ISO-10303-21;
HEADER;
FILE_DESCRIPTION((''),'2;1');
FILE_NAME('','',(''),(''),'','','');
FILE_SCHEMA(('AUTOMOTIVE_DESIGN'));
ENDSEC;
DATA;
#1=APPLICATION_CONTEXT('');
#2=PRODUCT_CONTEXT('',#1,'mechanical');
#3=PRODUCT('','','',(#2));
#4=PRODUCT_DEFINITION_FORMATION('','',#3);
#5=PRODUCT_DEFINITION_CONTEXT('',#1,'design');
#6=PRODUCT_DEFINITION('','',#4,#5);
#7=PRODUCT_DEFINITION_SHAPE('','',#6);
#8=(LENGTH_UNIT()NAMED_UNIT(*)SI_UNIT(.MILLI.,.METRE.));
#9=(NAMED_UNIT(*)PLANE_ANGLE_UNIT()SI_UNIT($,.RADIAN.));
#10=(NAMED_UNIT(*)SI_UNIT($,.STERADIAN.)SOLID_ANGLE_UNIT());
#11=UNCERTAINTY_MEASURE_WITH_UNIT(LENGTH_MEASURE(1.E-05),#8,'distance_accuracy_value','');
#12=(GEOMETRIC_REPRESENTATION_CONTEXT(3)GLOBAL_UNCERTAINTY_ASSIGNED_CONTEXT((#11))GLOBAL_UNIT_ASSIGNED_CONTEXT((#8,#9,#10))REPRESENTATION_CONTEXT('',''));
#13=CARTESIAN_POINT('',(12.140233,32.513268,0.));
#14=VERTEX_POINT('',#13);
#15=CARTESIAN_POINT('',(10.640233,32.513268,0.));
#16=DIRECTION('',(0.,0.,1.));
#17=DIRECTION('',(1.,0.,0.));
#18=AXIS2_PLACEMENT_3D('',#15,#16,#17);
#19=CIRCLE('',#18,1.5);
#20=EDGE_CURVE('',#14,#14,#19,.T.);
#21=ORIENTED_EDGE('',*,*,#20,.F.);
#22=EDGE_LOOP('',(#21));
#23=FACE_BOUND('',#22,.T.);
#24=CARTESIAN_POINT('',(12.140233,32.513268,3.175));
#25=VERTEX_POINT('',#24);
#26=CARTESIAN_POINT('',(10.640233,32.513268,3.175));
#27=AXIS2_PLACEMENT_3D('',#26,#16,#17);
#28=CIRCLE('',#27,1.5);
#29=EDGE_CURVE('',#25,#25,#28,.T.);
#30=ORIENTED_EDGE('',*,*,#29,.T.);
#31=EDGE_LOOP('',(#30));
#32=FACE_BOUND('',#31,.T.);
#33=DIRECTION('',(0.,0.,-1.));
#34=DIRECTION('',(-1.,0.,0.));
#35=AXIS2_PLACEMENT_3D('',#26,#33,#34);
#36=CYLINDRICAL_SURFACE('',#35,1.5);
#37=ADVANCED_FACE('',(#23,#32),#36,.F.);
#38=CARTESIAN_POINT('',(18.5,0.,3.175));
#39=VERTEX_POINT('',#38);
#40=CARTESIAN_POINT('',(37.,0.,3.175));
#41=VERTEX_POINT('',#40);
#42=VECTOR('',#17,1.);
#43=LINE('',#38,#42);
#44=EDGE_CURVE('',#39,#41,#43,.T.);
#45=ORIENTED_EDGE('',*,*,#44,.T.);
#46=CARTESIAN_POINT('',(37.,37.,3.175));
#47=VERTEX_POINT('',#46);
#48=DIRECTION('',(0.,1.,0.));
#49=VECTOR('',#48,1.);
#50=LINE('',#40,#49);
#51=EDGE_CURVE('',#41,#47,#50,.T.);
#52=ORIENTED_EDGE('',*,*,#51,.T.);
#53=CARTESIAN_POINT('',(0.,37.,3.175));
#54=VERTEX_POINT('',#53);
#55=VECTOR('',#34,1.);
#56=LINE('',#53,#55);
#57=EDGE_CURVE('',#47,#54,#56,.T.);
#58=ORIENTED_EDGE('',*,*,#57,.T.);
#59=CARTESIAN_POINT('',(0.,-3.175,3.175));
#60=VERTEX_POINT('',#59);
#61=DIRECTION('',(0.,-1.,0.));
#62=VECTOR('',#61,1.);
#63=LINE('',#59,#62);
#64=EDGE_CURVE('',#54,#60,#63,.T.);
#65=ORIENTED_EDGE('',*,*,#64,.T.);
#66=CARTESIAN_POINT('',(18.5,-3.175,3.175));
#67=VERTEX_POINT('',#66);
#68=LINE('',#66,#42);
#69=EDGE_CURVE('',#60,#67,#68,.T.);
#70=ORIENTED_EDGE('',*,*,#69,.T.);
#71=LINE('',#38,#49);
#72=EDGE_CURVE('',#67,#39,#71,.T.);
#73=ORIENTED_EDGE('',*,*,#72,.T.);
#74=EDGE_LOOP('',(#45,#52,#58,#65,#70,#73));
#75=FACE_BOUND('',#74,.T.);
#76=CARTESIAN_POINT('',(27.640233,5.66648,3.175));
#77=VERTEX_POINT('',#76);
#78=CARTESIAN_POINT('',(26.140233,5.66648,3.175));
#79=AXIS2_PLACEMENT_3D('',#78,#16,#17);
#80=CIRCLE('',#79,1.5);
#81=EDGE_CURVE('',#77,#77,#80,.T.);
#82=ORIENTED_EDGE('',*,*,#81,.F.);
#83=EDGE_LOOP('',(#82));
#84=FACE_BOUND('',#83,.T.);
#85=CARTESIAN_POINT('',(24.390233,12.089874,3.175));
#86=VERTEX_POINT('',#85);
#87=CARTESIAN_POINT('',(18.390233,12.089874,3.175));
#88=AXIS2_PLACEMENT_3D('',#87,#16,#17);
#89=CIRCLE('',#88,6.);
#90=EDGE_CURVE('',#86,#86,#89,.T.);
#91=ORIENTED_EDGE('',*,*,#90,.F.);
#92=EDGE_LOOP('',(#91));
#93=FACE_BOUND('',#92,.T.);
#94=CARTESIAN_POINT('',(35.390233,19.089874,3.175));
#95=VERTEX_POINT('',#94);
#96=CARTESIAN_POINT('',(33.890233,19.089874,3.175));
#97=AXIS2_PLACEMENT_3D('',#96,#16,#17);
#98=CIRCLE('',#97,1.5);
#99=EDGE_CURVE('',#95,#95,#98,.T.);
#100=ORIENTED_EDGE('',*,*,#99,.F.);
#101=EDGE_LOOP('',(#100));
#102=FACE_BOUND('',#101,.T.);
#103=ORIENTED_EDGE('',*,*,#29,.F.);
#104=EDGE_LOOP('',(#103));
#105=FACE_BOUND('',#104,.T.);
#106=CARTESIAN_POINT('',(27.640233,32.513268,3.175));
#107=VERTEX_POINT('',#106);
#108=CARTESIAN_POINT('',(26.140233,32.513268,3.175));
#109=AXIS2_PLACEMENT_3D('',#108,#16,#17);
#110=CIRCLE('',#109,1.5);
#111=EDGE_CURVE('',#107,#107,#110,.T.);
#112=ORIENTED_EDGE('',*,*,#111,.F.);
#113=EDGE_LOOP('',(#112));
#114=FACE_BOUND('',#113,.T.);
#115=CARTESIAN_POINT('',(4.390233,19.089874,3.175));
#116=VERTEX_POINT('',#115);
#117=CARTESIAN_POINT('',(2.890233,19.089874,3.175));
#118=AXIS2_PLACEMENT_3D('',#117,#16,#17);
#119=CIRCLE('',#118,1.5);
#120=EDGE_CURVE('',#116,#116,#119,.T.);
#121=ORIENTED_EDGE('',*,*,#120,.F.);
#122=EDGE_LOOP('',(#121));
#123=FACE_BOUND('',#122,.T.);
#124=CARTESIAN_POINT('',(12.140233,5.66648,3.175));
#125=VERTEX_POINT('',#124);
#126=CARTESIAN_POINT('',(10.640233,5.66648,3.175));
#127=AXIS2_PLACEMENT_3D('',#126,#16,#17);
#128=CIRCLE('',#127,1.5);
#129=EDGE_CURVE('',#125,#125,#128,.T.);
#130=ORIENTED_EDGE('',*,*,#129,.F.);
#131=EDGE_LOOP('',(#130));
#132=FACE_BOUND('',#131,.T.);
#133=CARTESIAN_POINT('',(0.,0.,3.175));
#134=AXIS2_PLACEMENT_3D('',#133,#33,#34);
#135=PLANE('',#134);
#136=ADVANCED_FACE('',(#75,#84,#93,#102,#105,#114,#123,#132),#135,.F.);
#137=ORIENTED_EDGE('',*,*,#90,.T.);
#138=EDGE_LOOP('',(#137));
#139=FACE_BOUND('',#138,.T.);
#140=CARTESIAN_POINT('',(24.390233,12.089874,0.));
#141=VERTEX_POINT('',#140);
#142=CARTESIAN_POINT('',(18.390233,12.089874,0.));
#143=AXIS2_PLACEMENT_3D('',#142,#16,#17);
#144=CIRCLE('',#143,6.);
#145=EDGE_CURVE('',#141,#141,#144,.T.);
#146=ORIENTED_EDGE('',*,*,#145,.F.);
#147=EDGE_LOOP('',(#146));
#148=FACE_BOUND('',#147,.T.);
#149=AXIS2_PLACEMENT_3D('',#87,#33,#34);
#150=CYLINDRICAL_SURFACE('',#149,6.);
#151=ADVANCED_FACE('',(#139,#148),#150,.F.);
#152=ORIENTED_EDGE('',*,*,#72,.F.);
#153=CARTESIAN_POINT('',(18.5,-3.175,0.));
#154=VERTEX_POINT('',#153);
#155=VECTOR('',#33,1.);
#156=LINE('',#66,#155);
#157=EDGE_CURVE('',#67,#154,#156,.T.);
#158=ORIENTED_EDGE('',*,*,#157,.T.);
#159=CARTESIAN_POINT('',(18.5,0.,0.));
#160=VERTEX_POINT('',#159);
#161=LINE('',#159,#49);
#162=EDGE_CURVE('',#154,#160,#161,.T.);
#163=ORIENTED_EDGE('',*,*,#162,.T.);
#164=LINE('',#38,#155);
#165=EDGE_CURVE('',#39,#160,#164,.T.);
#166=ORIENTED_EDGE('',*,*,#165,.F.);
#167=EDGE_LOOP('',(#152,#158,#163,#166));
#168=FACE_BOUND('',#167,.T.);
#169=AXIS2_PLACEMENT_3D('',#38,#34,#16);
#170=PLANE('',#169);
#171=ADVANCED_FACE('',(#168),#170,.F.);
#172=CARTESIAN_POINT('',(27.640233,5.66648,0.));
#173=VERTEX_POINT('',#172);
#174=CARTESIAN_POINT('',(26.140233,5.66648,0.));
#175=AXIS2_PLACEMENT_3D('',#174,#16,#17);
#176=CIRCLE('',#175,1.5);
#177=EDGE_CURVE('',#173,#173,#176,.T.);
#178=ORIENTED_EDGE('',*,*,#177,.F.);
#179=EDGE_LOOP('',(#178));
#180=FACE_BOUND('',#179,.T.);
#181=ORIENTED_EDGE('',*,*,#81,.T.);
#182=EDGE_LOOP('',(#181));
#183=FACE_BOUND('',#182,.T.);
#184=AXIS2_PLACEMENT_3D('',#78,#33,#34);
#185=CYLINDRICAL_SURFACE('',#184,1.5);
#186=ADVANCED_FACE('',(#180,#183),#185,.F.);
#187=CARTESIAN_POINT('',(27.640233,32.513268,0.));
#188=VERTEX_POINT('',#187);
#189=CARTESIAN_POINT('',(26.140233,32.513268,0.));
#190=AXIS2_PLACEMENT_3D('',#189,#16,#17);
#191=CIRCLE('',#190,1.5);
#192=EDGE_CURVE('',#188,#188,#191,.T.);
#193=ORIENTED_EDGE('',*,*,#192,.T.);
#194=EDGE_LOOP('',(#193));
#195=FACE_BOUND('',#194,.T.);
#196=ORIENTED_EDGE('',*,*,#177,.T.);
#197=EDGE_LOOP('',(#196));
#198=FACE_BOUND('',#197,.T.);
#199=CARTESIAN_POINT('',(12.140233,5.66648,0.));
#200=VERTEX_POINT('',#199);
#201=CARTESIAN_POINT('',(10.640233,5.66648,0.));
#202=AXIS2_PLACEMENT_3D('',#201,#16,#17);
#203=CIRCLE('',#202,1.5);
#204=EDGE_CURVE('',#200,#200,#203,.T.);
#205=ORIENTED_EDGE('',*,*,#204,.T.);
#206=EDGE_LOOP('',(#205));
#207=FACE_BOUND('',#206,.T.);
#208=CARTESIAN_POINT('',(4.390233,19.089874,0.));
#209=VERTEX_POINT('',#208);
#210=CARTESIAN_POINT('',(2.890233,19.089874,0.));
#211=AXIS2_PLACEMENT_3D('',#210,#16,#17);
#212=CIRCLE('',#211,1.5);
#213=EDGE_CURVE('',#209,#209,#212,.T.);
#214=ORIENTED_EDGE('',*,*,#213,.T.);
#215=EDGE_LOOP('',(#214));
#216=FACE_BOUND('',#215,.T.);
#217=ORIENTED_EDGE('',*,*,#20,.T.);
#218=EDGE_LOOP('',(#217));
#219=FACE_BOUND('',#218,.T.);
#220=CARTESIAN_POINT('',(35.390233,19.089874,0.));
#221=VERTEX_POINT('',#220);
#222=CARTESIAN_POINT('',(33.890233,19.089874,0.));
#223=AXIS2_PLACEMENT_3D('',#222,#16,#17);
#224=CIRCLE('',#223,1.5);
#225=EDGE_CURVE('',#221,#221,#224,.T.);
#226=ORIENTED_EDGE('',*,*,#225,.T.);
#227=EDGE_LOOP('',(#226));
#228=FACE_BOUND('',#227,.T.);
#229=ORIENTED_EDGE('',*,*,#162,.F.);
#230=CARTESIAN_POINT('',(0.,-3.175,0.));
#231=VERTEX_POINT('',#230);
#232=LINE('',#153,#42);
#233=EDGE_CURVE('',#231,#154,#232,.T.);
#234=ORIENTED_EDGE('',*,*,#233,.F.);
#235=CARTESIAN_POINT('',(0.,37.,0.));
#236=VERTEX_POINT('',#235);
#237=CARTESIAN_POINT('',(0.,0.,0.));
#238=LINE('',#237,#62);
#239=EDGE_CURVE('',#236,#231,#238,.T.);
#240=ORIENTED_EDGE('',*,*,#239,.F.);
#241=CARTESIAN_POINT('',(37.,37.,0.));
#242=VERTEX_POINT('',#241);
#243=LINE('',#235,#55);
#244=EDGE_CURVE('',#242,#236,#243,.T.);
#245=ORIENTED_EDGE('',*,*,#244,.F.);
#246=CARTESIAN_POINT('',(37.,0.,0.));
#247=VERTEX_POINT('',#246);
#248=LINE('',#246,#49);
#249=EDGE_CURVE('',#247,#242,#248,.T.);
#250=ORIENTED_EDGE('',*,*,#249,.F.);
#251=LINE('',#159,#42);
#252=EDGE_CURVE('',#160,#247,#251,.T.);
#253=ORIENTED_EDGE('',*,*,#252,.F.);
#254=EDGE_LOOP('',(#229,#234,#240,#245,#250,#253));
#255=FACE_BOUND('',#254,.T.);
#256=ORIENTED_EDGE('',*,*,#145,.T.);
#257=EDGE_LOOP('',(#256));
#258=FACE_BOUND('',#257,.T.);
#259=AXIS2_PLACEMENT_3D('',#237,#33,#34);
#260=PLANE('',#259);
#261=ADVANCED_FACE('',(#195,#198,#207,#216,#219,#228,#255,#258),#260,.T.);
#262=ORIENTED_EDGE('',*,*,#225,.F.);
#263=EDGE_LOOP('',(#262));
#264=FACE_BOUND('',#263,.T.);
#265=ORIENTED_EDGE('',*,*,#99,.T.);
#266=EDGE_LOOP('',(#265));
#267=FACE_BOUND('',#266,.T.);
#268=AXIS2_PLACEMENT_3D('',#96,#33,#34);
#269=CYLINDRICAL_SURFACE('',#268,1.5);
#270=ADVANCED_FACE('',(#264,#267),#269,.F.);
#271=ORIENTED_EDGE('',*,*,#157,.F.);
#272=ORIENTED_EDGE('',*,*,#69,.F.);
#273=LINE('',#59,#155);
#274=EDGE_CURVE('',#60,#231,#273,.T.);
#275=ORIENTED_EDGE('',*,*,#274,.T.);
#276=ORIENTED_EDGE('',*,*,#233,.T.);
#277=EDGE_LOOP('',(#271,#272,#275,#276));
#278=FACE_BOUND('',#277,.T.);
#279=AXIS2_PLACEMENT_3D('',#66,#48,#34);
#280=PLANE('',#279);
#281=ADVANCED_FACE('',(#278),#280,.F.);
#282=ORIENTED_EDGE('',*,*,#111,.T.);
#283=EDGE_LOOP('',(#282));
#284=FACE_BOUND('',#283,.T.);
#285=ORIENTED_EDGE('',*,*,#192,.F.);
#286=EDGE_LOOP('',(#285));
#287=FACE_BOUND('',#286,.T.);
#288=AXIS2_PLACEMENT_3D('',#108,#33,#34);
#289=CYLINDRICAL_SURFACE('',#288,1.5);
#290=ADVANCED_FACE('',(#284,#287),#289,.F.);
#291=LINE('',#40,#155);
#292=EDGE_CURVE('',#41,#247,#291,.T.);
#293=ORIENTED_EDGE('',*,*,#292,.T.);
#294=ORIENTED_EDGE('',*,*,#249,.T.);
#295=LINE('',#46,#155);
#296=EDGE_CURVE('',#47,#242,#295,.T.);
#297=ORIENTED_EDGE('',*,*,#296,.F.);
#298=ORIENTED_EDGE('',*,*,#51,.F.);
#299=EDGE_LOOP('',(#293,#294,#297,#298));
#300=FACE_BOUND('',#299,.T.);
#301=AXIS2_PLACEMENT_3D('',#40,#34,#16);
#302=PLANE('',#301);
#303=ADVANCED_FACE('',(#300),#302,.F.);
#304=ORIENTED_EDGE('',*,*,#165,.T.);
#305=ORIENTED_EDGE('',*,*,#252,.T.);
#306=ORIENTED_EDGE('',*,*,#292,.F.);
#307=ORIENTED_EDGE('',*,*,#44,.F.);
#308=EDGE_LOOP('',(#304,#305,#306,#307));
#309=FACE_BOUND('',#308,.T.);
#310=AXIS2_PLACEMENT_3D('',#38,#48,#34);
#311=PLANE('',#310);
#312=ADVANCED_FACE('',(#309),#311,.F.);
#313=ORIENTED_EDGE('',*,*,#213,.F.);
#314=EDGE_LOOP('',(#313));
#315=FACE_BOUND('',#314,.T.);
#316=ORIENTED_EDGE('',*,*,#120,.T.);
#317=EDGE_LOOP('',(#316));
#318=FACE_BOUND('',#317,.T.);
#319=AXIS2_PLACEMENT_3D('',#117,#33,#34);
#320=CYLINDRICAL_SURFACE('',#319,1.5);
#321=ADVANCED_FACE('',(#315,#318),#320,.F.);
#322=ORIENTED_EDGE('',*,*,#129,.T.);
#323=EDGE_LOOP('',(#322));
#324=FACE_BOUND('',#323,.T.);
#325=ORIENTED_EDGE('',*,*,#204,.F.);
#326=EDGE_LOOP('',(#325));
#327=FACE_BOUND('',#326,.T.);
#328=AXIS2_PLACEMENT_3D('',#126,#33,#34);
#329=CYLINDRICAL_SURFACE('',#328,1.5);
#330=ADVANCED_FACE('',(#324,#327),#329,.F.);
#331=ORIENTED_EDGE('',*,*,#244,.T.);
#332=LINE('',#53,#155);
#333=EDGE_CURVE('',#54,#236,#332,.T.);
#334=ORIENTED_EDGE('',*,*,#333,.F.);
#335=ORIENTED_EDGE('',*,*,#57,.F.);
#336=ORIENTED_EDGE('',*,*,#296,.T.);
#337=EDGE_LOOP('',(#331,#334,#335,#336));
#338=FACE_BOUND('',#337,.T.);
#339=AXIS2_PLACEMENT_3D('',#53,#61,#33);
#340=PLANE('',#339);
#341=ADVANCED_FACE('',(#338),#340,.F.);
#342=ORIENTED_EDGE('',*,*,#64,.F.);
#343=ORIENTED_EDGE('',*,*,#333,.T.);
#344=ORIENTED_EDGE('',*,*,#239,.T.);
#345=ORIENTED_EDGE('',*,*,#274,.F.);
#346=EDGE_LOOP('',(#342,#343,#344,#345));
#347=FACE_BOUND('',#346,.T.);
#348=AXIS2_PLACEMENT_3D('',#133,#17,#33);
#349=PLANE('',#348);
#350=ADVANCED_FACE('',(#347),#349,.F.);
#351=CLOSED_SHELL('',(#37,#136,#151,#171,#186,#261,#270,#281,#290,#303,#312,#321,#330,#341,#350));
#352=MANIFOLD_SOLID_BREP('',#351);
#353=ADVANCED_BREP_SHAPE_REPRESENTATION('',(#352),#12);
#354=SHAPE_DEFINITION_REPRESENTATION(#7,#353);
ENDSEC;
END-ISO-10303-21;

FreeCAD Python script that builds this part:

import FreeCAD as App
import Part
import Sketcher
from FreeCAD import Vector
Q = App.Units.Quantity


def add_polygon(sketch, points):
    """Adds a closed chain of lines whose ends are joined by coincident constraints."""
    first, n = sketch.GeometryCount, len(points)
    for a, b in zip(points, points[1:] + points[:1]):
        sketch.addGeometry(Part.LineSegment(App.Vector(*a, 0), App.Vector(*b, 0)), False)
    for i in range(n):
        sketch.addConstraint(Sketcher.Constraint("Coincident", first + i, 2, first + (i + 1) % n, 1))

doc = App.newDocument("Part")
body = doc.addObject("PartDesign::Body", "Body")

sketch1 = body.newObject("Sketcher::SketchObject", "Sketch")
sketch1.AttachmentSupport = (doc.getObject("XY_Plane"), [""])
sketch1.MapMode = "FlatFace"
add_polygon(sketch1, [(18.5, -3.2), (18.5, 0), (37, 0), (37, 37), (0, 37), (0, -3.2)])
sketch1.addGeometry(Part.Circle(Vector(26.1, 5.7, 0), Vector(0, 0, 1), 1.5), False)
sketch1.addGeometry(Part.Circle(Vector(18.4, 12.1, 0), Vector(0, 0, 1), 6), False)
sketch1.addGeometry(Part.Circle(Vector(10.6, 5.7, 0), Vector(0, 0, 1), 1.5), False)
sketch1.addGeometry(Part.Circle(Vector(33.9, 19.1, 0), Vector(0, 0, 1), 1.5), False)
sketch1.addGeometry(Part.Circle(Vector(26.1, 32.5, 0), Vector(0, 0, 1), 1.5), False)
sketch1.addGeometry(Part.Circle(Vector(2.9, 19.1, 0), Vector(0, 0, 1), 1.5), False)
sketch1.addGeometry(Part.Circle(Vector(10.6, 32.5, 0), Vector(0, 0, 1), 1.5), False)
sketch1.addConstraint([
    Sketcher.Constraint("Vertical", 0),
    Sketcher.Constraint("Horizontal", 1),
    Sketcher.Constraint("Vertical", 2),
    Sketcher.Constraint("Horizontal", 3),
    Sketcher.Constraint("Vertical", 4),
    Sketcher.Constraint("Horizontal", 5),
    Sketcher.Constraint("Equal", 6, 8),
    Sketcher.Constraint("Equal", 8, 9),
    Sketcher.Constraint("Equal", 9, 10),
    Sketcher.Constraint("Equal", 10, 11),
    Sketcher.Constraint("Equal", 11, 12),
    Sketcher.Constraint("PointOnObject", 0, 2, -1),
    Sketcher.Constraint("PointOnObject", 3, 2, -2),
    Sketcher.Constraint("Horizontal", 6, 3, 8, 3),
    Sketcher.Constraint("Horizontal", 9, 3, 11, 3),
    Sketcher.Constraint("Horizontal", 10, 3, 12, 3),
    Sketcher.Constraint("Vertical", 6, 3, 10, 3),
    Sketcher.Constraint("Vertical", 8, 3, 12, 3),
    Sketcher.Constraint("Equal", 1, 5),
    Sketcher.Constraint("Equal", 3, 2),
    Sketcher.Constraint("Diameter", 6, Q("3 mm")),
    Sketcher.Constraint("Diameter", 7, Q("12 mm")),
    Sketcher.Constraint("DistanceX", 3, 2, 3, 1, Q("37 mm")),
    Sketcher.Constraint("DistanceY", 7, 3, 9, 3, Q("7 mm")),
    Sketcher.Constraint("DistanceX", 11, 3, 9, 3, Q("31 mm")),
    Sketcher.Constraint("DistanceX", 8, 3, 6, 3, Q("15.5 mm")),
    Sketcher.Constraint("DistanceX", 7, 3, 9, 3, Q("15.5 mm")),
    Sketcher.Constraint("DistanceY", 0, 1, 0, 2, Q("3.175 mm")),
    Sketcher.Constraint("DistanceX", 7, 3, 6, 3, Q("7.75 mm")),
    Sketcher.Constraint("DistanceY", -1, 1, 6, 3, Q("5.66648 mm")),
    Sketcher.Constraint("DistanceX", -1, 1, 6, 3, Q("26.140233 mm")),
    Sketcher.Constraint("DistanceY", -1, 1, 7, 3, Q("12.089874 mm")),
    Sketcher.Constraint("DistanceY", -1, 1, 10, 3, Q("32.513268 mm")),
])
pad1 = body.newObject("PartDesign::Pad", "Pad")
pad1.Profile = sketch1
pad1.Length = 3.175

doc.recompute()
